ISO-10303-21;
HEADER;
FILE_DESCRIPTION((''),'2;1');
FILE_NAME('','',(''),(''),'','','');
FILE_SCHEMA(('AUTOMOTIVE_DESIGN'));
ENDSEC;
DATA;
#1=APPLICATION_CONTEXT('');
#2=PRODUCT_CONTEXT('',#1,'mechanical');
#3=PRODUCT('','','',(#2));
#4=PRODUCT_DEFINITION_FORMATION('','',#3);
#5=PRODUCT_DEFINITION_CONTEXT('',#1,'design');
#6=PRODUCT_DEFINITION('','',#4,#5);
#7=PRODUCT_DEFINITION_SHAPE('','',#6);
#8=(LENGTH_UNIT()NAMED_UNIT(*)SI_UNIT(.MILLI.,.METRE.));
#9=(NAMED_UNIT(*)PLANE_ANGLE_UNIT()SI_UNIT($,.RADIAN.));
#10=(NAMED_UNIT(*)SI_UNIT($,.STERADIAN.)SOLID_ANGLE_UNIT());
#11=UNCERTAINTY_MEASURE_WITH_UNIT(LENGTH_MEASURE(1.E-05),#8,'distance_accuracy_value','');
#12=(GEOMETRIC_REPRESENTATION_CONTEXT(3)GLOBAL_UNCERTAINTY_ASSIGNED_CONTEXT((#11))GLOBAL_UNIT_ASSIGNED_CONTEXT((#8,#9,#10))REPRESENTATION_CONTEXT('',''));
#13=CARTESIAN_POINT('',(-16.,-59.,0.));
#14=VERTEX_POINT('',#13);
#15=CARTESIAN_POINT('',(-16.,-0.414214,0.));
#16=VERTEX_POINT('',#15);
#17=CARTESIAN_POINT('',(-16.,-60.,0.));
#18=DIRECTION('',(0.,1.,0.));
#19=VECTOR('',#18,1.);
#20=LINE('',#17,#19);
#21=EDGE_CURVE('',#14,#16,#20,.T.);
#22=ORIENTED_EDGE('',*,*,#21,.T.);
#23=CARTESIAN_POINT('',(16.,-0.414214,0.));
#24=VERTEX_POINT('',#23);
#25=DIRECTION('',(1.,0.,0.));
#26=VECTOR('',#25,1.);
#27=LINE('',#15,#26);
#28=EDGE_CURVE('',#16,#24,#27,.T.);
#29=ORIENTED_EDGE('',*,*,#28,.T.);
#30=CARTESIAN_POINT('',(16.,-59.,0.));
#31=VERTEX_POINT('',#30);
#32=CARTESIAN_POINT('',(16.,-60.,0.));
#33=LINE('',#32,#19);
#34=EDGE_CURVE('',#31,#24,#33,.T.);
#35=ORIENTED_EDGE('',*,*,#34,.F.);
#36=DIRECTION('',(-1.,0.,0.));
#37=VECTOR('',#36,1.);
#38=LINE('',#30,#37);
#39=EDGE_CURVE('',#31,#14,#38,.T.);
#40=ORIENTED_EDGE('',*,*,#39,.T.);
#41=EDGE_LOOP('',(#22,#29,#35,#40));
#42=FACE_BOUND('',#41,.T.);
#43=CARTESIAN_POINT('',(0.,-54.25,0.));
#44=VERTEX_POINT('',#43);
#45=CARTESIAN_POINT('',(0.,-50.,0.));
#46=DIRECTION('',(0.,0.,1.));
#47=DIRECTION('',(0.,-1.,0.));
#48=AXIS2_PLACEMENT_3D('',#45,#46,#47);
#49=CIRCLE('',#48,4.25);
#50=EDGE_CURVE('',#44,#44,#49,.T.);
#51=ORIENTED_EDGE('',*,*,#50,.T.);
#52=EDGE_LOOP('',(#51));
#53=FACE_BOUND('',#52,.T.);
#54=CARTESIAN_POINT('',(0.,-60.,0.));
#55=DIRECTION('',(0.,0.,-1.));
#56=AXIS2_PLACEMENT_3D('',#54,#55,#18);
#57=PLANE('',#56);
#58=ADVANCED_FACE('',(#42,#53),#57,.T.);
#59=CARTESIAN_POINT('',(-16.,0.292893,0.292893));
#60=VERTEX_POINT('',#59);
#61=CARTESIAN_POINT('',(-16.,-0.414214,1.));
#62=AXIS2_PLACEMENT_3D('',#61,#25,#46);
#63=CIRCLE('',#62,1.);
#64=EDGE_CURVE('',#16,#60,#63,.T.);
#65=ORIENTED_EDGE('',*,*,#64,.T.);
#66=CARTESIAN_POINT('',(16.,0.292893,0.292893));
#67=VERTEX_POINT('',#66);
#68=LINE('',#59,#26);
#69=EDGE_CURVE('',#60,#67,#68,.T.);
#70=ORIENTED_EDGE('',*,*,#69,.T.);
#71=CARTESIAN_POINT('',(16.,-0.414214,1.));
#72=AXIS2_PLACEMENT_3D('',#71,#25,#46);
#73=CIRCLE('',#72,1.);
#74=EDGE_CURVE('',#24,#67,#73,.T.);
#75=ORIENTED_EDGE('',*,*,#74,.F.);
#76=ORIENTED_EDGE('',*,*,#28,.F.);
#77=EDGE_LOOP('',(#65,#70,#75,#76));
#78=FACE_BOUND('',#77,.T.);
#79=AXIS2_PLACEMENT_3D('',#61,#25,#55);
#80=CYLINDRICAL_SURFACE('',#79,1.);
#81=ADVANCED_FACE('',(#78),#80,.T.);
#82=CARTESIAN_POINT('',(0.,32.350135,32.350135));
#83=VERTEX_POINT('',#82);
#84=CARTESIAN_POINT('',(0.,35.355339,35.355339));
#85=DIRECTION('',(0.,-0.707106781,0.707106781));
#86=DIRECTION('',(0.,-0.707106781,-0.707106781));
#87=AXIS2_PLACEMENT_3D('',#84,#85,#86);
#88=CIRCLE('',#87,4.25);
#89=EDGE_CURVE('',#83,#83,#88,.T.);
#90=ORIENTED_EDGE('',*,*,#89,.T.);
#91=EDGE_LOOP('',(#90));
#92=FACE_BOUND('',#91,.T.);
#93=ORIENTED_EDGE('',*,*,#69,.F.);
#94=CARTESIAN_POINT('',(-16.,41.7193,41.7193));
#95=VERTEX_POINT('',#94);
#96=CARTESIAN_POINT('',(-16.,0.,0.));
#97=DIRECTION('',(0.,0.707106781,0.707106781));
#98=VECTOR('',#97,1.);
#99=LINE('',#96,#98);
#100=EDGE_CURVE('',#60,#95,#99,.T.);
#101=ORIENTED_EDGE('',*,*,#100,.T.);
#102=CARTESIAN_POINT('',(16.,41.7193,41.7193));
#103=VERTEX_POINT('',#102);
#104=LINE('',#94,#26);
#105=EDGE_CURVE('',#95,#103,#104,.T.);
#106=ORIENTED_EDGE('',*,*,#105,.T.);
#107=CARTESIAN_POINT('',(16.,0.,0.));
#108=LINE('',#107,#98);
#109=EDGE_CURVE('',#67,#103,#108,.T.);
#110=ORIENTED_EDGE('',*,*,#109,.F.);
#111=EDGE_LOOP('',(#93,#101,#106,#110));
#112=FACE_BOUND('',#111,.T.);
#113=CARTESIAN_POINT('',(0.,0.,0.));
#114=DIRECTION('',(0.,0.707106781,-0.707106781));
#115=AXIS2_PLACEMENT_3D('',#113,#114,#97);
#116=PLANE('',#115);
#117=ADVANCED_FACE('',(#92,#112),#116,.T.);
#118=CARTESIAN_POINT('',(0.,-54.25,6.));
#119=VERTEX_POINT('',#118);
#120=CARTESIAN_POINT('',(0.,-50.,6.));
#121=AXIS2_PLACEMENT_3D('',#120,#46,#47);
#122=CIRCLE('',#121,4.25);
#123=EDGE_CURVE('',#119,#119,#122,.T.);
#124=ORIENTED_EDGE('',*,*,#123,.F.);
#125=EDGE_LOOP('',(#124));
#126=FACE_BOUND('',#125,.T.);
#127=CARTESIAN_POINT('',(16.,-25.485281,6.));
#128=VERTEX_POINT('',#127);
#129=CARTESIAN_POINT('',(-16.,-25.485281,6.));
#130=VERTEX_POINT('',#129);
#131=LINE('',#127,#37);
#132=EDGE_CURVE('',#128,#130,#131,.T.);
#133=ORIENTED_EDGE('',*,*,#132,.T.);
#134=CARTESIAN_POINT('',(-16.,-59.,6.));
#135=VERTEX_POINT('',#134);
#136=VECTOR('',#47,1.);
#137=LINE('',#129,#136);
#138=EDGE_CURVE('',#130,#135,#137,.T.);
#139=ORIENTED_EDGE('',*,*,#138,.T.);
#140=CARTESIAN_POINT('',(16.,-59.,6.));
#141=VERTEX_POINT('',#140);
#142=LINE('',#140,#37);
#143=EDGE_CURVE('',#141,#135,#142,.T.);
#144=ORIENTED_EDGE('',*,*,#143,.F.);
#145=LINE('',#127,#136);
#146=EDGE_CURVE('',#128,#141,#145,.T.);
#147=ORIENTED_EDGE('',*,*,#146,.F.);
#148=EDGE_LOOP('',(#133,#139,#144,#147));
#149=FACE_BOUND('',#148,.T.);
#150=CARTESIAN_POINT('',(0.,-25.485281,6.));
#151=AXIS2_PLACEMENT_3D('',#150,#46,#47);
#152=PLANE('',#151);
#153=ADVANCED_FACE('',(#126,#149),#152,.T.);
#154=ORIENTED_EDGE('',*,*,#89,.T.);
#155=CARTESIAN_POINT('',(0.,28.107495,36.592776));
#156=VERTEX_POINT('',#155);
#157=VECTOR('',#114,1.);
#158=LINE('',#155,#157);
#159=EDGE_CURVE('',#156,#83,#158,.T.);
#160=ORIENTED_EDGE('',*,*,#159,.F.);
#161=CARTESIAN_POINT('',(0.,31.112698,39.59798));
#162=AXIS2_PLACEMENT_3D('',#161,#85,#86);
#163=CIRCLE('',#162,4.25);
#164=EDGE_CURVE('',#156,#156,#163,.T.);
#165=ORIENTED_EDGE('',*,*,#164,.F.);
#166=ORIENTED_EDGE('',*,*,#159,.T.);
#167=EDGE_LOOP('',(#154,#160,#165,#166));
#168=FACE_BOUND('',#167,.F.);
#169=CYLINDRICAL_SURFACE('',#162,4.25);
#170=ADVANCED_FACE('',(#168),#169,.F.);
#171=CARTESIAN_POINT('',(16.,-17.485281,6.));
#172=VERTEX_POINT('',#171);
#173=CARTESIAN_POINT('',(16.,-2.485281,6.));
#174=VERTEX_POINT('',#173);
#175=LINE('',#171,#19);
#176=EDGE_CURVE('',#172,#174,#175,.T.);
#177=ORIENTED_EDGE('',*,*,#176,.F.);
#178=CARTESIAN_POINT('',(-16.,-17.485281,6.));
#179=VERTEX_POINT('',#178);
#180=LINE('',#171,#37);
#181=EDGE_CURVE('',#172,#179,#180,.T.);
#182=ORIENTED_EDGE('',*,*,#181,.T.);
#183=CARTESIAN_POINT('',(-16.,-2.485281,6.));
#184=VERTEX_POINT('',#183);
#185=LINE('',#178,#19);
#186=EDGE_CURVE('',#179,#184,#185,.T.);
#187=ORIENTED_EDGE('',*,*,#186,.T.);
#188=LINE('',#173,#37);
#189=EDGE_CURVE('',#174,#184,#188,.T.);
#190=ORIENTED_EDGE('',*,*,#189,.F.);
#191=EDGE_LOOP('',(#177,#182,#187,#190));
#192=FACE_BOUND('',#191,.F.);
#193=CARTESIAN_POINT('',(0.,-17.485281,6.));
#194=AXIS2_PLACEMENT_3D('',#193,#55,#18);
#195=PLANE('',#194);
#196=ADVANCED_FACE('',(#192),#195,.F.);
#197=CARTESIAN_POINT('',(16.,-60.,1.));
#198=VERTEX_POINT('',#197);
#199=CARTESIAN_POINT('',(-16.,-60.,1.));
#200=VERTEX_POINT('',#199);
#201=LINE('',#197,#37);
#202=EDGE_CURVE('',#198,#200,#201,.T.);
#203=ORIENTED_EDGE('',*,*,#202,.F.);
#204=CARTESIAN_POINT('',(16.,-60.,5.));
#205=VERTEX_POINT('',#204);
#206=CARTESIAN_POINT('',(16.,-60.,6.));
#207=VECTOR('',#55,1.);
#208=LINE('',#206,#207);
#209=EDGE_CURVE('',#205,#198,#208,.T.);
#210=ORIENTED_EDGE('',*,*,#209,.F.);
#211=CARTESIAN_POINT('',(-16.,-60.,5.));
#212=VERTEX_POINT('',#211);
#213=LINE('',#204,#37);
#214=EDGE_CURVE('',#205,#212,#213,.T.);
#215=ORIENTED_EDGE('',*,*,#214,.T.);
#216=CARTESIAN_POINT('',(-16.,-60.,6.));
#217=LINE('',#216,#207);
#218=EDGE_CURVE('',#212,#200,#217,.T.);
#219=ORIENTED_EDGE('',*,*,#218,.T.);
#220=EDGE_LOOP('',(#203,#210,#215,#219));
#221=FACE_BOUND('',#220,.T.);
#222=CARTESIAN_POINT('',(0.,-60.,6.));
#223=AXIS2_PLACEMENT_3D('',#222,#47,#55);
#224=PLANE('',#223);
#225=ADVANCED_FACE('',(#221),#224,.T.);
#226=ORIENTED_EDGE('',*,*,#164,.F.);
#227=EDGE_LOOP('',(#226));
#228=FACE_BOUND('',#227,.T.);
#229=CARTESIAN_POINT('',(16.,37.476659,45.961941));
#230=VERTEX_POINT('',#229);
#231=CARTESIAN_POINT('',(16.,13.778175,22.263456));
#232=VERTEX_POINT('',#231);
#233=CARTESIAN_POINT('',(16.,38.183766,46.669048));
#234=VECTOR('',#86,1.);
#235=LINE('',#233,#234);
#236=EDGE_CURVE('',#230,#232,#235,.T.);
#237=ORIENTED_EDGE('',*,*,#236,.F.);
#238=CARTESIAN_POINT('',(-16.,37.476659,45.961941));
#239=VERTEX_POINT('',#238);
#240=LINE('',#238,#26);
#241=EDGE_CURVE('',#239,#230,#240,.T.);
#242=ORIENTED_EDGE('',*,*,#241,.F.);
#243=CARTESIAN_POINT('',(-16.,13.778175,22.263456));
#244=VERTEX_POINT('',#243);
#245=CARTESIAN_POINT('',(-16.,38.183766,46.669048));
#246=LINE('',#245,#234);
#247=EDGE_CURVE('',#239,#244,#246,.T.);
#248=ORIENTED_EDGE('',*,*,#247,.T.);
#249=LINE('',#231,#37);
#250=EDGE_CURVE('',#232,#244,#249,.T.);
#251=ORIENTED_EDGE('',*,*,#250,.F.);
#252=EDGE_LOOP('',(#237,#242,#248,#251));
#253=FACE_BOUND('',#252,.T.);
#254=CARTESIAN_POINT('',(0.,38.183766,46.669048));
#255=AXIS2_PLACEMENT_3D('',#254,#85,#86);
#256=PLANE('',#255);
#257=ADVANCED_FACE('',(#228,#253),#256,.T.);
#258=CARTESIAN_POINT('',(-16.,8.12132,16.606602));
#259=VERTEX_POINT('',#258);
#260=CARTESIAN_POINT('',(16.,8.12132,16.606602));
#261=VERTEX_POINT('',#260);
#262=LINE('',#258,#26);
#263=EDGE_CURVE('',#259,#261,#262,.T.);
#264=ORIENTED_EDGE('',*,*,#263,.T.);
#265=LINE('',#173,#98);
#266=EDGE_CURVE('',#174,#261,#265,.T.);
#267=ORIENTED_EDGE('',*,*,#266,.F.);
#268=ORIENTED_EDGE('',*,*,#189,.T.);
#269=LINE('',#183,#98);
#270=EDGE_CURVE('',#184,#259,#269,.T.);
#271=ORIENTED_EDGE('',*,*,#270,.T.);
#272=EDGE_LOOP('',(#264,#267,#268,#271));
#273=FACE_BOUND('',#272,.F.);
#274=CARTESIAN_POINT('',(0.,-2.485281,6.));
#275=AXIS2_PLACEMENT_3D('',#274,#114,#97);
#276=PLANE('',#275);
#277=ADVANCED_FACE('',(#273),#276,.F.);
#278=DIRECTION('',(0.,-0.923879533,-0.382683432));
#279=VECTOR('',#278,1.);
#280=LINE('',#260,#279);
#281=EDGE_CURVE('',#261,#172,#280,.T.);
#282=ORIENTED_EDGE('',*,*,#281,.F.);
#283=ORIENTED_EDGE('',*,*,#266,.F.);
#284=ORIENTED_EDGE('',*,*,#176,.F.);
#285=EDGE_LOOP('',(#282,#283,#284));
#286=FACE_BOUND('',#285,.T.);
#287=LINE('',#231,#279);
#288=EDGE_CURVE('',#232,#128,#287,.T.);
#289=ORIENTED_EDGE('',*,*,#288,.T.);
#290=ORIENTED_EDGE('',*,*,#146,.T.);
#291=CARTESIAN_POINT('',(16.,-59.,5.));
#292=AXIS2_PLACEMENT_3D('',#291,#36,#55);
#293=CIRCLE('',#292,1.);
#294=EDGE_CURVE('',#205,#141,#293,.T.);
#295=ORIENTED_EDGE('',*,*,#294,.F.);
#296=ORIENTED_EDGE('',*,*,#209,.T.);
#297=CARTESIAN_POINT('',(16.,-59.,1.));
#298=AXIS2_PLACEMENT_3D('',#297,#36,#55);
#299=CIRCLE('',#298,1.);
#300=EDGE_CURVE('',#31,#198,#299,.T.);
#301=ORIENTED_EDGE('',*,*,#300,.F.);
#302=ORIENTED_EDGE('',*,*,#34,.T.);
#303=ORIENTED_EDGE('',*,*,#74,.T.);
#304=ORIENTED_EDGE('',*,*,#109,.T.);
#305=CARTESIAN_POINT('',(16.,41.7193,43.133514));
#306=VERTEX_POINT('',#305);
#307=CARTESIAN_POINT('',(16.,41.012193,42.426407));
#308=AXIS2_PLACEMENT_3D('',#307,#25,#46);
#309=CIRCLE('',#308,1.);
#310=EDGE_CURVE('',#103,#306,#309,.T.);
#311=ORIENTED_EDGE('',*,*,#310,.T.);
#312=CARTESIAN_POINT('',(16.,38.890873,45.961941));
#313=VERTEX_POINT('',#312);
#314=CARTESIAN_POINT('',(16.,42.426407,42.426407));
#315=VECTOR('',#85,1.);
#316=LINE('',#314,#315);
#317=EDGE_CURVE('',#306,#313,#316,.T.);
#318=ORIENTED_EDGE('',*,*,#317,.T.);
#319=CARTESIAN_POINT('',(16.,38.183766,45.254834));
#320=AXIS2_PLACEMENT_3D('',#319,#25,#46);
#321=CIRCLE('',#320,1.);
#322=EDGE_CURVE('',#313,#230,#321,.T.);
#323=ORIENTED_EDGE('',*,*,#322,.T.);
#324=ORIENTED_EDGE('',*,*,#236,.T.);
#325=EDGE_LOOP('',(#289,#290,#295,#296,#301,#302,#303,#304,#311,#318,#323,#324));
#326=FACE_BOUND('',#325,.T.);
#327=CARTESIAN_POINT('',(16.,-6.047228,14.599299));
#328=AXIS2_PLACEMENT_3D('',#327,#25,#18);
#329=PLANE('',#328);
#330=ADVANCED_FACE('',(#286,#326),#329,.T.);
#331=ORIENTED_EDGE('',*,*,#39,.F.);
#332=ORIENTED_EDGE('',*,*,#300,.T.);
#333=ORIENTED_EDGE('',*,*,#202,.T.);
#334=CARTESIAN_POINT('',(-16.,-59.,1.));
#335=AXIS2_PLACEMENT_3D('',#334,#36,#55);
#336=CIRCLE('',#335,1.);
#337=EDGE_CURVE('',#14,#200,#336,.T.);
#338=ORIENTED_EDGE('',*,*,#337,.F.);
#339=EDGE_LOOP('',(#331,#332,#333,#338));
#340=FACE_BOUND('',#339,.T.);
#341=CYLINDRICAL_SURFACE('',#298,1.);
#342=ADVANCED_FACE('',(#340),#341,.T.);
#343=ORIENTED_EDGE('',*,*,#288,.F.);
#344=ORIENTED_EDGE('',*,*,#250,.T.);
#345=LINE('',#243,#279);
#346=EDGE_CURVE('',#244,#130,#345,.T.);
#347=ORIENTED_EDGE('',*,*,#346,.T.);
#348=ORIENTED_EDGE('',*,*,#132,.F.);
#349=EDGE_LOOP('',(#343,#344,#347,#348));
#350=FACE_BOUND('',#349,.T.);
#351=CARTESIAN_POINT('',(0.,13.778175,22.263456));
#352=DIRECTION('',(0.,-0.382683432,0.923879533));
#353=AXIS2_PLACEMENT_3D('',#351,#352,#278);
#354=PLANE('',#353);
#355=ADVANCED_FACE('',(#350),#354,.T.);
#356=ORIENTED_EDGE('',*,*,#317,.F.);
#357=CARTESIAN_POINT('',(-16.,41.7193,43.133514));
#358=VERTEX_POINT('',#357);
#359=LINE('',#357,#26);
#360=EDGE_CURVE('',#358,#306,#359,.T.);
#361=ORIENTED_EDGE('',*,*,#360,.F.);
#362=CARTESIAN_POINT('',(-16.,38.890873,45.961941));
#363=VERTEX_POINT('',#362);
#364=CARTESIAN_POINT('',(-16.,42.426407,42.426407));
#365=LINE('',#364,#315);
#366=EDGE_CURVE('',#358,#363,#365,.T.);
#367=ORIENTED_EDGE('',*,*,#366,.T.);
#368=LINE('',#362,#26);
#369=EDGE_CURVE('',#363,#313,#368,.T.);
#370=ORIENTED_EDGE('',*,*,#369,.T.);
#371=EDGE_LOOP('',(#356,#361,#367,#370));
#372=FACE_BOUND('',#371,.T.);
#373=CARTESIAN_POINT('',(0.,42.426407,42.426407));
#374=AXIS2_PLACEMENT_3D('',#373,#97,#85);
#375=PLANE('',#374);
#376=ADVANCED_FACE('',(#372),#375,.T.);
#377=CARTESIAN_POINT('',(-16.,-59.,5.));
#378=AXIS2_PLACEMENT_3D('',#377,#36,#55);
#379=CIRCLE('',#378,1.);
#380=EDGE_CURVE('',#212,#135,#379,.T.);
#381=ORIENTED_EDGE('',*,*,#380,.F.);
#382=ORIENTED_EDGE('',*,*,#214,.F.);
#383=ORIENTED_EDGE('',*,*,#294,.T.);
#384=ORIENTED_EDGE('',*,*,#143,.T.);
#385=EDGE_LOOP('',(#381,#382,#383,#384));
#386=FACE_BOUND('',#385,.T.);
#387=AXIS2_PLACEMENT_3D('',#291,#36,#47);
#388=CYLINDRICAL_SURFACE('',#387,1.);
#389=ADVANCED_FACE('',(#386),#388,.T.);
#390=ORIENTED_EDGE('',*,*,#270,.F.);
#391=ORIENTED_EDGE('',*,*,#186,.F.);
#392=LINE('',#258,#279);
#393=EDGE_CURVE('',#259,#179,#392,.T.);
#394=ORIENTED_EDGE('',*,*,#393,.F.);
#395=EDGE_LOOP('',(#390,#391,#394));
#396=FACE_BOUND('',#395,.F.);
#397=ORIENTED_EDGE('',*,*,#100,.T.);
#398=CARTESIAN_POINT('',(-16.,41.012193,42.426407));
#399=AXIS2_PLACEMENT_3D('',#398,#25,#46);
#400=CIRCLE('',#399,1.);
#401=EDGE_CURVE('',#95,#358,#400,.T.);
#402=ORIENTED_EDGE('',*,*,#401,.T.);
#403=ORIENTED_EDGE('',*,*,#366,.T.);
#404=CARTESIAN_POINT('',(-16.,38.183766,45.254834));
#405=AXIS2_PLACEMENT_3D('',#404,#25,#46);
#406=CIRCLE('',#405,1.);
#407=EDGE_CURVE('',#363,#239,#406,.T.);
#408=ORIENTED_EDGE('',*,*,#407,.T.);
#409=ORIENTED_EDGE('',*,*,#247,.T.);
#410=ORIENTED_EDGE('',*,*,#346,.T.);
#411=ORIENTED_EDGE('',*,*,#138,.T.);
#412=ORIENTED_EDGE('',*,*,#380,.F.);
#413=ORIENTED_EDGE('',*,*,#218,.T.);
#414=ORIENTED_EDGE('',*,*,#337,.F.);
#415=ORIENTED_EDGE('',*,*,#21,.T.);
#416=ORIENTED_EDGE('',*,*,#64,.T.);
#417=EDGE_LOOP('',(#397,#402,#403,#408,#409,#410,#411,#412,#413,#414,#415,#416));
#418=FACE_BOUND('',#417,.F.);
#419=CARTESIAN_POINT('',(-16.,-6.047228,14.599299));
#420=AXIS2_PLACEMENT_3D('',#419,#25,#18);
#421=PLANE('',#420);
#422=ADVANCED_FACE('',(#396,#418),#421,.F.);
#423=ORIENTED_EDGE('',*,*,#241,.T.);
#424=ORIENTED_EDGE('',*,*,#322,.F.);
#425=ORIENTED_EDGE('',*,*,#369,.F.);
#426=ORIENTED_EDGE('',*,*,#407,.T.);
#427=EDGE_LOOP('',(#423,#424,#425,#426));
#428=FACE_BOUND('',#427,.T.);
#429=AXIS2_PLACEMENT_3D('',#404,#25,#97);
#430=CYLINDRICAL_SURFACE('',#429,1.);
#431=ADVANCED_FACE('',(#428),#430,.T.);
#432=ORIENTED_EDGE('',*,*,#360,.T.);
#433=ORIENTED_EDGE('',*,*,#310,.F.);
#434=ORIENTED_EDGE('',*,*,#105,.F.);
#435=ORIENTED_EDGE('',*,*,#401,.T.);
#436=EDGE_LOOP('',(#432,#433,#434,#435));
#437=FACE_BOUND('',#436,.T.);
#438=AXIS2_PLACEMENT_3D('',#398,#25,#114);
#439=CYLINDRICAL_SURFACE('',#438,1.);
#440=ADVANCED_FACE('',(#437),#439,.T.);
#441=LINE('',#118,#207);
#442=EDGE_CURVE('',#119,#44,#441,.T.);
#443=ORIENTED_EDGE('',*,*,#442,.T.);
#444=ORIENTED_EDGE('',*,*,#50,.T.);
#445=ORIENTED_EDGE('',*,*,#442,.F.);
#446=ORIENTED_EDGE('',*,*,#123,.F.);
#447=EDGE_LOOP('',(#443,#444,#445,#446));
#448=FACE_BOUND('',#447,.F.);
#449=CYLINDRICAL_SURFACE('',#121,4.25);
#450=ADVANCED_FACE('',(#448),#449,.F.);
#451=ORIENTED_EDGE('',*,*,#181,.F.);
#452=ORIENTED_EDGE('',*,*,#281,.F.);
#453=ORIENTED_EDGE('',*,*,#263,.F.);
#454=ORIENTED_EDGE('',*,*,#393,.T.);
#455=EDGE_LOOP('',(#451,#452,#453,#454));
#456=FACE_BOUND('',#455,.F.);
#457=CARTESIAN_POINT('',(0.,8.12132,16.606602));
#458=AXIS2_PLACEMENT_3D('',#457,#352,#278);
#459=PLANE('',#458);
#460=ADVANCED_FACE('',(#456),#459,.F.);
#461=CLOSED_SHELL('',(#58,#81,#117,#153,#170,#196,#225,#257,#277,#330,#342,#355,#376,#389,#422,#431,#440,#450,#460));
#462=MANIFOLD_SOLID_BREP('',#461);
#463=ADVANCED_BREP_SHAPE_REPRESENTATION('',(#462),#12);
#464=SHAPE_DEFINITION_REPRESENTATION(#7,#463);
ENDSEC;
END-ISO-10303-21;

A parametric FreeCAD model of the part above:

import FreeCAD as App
import Part
import Sketcher

V = App.Vector
Q = App.Units.Quantity


def edges_at(feature, points):
    """Names of the edges that pass closest to the given points."""
    edges = feature.Shape.Edges
    near = lambda p: min(range(len(edges)), key=lambda i: edges[i].distToShape(Part.Vertex(*p))[0])
    return sorted({f"Edge{near(p) + 1}" for p in points})


def add_polygon(sketch, points):
    """Adds a closed chain of lines whose ends are joined by coincident constraints."""
    first, n = sketch.GeometryCount, len(points)
    for a, b in zip(points, points[1:] + points[:1]):
        sketch.addGeometry(Part.LineSegment(App.Vector(*a, 0), App.Vector(*b, 0)), False)
    for i in range(n):
        sketch.addConstraint(Sketcher.Constraint("Coincident", first + i, 2, first + (i + 1) % n, 1))

doc = App.newDocument("Part")
params = doc.addObject("Spreadsheet::Sheet", "Params")
for row, (alias, value) in enumerate([
    ("sketch1_width", "60 mm"),
    ("sketch1_width2", "15 mm"),
    ("sketch1_height", "6 mm"),
    ("sketch1_length", "60 mm"),
    ("sketch1_length2", "6 mm"),
    ("pad1_length", "32 mm"),
    ("sketch2_diameter", "8.5 mm"),
    ("pocket1_length", "6 mm"),
    ("sketch3_diameter", "8.5 mm"),
    ("pocket2_length", "6 mm"),
    ("fillet_radius", "1 mm"),
], start=1):
    params.set(f"A{row}", alias)
    params.set(f"B{row}", "=" + value)
    params.setAlias(f"B{row}", alias)

body = doc.addObject("PartDesign::Body", "Body")

sketch1 = body.newObject("Sketcher::SketchObject", "Sketch")
sketch1.AttachmentSupport = (doc.getObject("YZ_Plane"), [""])
sketch1.MapMode = "FlatFace"
add_polygon(sketch1, [(-60, 0), (0, 0), (42, 42), (38, 47), (14, 22), (-25, 6), (-60, 6)])
add_polygon(sketch1, [(-17, 6), (8, 17), (-2, 6)])
sketch1.addConstraint([
    Sketcher.Constraint("Horizontal", 0),
    Sketcher.Constraint("Horizontal", 5),
    Sketcher.Constraint("Vertical", 6),
    Sketcher.Constraint("Horizontal", 9),
    Sketcher.Constraint("Coincident", 0, 2, -1, 1),
    Sketcher.Constraint("Perpendicular", 1, 2),
    Sketcher.Constraint("Perpendicular", 2, 3),
    Sketcher.Constraint("Parallel", 4, 7),
    Sketcher.Constraint("Parallel", 3, 8),
    Sketcher.Constraint("Horizontal", 5, 2, 8, 2),
    Sketcher.Constraint("DistanceX", 0, 1, 0, 2, 60.0),
    Sketcher.Constraint("DistanceX", 9, 2, 9, 1, 15.0),
    Sketcher.Constraint("DistanceY", 6, 2, 6, 1, 6.0),
    Sketcher.Constraint("Angle", 1, Q("45 deg")),
    Sketcher.Constraint("Distance", 1, 60.0),
    Sketcher.Constraint("Distance", 2, 6.0),
    Sketcher.Constraint("Distance", 8, 15.0),
    Sketcher.Constraint("DistanceX", 4, 2, 8, 2, 23.0),
    Sketcher.Constraint("DistanceX", 5, 2, 5, 1, 34.514719),
])
sketch1.setExpression("Constraints[20]", "Params.sketch1_width")
sketch1.setExpression("Constraints[21]", "Params.sketch1_width2")
sketch1.setExpression("Constraints[22]", "Params.sketch1_height")
sketch1.setExpression("Constraints[24]", "Params.sketch1_length")
sketch1.setExpression("Constraints[25]", "Params.sketch1_length2")
pad1 = body.newObject("PartDesign::Pad", "Pad")
pad1.Profile = sketch1
pad1.setExpression("Length", "Params.pad1_length")
pad1.Midplane = True

sketch2 = body.newObject("Sketcher::SketchObject", "Sketch001")
sketch2.AttachmentSupport = (doc.getObject("XY_Plane"), [""])
sketch2.MapMode = "FlatFace"
sketch2.AttachmentOffset = App.Placement(V(0, 0, 6), App.Rotation())
sketch2.addGeometry(Part.Circle(V(0, -50, 0), V(0, 0, 1), 4.2), False)
sketch2.addConstraint([
    Sketcher.Constraint("PointOnObject", 0, 3, -2),
    Sketcher.Constraint("Diameter", 0, 8.5),
    Sketcher.Constraint("DistanceY", 0, 3, -1, 1, 50.0),
])
sketch2.setExpression("Constraints[1]", "Params.sketch2_diameter")
pocket1 = body.newObject("PartDesign::Pocket", "Pocket")
pocket1.Profile = sketch2
pocket1.setExpression("Length", "Params.pocket1_length")

sketch3 = body.newObject("Sketcher::SketchObject", "Sketch002")
sketch3.Placement = App.Placement(V(0, -4.242641, 4.242641), App.Rotation(V(0, -0.707106781, -0.707106781), V(0.999999999, 0, 0), V(0, -0.707106781, 0.707106781), "ZXY"))
sketch3.addGeometry(Part.Circle(V(-50, 0, 0), V(0, 0, 1), 4.2), False)
sketch3.addConstraint([
    Sketcher.Constraint("PointOnObject", 0, 3, -1),
    Sketcher.Constraint("Diameter", 0, 8.5),
    Sketcher.Constraint("DistanceX", 0, 3, -1, 1, 50.0),
])
sketch3.setExpression("Constraints[1]", "Params.sketch3_diameter")
pocket2 = body.newObject("PartDesign::Pocket", "Pocket001")
pocket2.Profile = sketch3
pocket2.setExpression("Length", "Params.pocket2_length")
doc.recompute()

fillet = body.newObject("PartDesign::Fillet", "Fillet")
fillet.Base = (pocket2, edges_at(pocket2, [
    (0, 0, 0),
    (0, -60, 0),
    (0, -60, 6),
    (0, 38.184, 46.669),
    (0, 42.426, 42.426),
]))
fillet.setExpression("Radius", "Params.fillet_radius")

doc.recompute()
